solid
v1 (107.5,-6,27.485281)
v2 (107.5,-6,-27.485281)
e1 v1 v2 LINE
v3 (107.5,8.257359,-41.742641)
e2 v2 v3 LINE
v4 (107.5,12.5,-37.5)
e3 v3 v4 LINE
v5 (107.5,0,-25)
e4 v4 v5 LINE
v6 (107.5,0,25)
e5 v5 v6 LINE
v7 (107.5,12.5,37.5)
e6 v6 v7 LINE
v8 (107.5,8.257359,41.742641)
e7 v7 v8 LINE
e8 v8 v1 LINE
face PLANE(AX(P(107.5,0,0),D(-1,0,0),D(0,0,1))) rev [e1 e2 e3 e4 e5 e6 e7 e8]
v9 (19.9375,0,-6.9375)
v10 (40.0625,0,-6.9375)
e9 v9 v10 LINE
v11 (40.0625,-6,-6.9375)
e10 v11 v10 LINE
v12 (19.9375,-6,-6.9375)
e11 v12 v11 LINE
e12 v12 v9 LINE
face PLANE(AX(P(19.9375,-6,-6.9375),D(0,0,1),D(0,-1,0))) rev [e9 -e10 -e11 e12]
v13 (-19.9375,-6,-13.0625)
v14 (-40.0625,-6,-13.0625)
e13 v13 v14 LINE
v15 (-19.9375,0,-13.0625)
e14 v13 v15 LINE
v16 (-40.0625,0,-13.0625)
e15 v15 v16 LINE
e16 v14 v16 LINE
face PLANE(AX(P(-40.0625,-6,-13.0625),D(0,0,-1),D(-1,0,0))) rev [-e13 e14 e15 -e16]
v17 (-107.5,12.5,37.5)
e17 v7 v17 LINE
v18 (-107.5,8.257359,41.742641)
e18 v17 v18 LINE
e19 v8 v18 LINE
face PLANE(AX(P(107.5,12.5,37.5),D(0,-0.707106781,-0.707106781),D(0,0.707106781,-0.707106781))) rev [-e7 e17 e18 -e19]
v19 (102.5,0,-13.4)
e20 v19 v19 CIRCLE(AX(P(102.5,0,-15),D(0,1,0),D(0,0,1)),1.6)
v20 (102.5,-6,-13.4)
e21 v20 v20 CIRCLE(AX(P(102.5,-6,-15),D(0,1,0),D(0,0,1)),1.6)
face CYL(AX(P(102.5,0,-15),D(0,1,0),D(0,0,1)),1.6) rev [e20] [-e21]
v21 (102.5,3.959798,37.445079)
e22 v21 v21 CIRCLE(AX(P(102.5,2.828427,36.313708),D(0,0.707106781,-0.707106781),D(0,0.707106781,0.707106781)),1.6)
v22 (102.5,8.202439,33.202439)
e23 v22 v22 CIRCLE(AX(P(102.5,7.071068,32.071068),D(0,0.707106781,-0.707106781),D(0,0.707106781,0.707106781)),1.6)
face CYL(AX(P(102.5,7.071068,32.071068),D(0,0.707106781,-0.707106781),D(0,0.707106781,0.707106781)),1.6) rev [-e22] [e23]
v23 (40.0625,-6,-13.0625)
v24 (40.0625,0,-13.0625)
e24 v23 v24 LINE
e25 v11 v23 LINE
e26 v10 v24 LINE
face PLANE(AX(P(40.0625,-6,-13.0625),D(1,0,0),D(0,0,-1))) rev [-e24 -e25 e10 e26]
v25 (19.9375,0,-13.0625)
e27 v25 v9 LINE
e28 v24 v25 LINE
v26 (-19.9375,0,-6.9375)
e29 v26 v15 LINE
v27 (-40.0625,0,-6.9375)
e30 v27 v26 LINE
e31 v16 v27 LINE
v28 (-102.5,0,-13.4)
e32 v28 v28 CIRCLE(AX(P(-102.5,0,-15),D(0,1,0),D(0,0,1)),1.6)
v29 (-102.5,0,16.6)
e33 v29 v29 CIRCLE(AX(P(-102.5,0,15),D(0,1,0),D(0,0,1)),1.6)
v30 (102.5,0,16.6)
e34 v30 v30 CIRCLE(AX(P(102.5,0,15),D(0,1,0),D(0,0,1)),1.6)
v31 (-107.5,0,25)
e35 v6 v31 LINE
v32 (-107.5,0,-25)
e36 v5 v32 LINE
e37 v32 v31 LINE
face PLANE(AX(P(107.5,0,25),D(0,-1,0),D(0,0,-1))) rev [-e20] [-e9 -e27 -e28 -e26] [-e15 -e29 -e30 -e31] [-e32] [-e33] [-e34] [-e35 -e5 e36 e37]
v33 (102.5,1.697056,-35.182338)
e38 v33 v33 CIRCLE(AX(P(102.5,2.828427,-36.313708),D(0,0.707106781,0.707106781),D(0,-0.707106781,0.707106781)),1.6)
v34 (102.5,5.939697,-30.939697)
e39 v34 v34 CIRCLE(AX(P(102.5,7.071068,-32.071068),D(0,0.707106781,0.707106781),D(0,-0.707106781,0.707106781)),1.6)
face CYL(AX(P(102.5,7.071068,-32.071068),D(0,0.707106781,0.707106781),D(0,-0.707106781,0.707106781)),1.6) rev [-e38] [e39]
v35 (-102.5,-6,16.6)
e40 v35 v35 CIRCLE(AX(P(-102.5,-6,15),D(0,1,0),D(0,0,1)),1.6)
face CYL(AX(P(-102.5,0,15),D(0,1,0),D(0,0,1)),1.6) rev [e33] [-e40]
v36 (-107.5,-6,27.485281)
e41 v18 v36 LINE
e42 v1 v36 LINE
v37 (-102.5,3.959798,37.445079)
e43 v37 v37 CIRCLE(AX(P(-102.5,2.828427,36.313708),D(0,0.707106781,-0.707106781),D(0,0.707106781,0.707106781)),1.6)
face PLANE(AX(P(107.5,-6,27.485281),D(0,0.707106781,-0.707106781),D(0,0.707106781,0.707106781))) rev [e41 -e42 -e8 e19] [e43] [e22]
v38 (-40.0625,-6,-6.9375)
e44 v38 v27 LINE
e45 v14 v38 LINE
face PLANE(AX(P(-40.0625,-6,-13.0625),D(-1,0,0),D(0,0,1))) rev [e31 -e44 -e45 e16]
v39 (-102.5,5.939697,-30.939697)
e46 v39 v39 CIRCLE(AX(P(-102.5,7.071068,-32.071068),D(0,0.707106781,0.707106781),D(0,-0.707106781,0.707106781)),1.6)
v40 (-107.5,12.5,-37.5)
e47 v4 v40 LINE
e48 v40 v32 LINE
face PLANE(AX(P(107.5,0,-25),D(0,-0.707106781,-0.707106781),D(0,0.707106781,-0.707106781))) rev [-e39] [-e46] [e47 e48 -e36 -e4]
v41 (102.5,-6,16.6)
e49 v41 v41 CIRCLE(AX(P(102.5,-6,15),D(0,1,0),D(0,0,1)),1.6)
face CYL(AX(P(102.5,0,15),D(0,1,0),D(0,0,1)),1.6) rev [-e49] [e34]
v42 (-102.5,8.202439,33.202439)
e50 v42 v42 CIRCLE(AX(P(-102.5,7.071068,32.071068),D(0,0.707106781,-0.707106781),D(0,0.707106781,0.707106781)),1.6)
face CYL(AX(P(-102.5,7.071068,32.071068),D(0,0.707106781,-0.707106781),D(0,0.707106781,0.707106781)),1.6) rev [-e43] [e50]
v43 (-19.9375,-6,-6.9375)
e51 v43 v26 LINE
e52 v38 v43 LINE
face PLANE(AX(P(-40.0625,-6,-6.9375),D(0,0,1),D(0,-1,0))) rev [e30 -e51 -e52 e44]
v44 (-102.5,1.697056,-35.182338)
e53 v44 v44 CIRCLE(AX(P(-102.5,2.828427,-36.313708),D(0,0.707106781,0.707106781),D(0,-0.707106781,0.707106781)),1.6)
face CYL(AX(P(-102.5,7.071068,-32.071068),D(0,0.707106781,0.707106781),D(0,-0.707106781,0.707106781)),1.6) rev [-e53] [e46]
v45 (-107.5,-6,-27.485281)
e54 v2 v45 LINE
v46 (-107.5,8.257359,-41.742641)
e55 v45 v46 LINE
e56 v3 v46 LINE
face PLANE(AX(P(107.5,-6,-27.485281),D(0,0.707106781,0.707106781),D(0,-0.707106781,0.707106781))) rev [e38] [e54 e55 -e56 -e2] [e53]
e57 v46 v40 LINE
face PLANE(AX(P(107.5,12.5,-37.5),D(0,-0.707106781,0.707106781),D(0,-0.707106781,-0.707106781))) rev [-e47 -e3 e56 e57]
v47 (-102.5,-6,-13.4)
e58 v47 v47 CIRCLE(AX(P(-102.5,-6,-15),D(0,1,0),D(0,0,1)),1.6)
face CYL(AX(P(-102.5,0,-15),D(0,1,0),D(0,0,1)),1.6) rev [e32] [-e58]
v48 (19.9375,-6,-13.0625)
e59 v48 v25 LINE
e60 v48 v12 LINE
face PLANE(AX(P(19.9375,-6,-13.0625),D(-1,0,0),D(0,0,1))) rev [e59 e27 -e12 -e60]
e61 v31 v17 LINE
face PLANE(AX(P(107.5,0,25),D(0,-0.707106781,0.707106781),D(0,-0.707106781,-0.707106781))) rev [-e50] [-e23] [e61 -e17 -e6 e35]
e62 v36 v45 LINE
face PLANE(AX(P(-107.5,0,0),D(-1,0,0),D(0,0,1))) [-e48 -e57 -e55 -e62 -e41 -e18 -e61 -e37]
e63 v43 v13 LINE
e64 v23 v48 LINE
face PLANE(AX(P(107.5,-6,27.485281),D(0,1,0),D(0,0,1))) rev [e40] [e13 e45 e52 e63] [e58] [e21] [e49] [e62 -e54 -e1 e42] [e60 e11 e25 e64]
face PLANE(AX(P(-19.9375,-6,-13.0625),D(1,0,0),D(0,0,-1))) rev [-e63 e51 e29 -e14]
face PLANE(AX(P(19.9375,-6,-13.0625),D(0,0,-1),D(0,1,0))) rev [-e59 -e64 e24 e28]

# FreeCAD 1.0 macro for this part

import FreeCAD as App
import Part
import Sketcher

V = App.Vector
Q = App.Units.Quantity


def add_polygon(sketch, points):
    """Adds a closed chain of lines whose ends are joined by coincident constraints."""
    first, n = sketch.GeometryCount, len(points)
    for a, b in zip(points, points[1:] + points[:1]):
        sketch.addGeometry(Part.LineSegment(App.Vector(*a, 0), App.Vector(*b, 0)), False)
    for i in range(n):
        sketch.addConstraint(Sketcher.Constraint("Coincident", first + i, 2, first + (i + 1) % n, 1))

doc = App.newDocument("Part")
body = doc.addObject("PartDesign::Body", "Body")

# Sketch on YZ plane
sketch1 = doc.addObject("Sketcher::SketchObject", "Sketch")
body.addObject(sketch1)
sketch1.AttachmentSupport = (doc.YZ_Plane, [""])
sketch1.MapMode = "FlatFace"
add_polygon(sketch1, [(0, -25), (0, 25), (12, 38), (8, 42), (-6, 27), (-6, -27), (8, -42), (12, -38)])  # lines 0-7
sketch1.addConstraint(Sketcher.Constraint("Vertical", 0))
sketch1.addConstraint(Sketcher.Constraint("Vertical", 4))
sketch1.addConstraint(Sketcher.Constraint("Symmetric", 0, 2, 7, 2, -1, 1))
sketch1.addConstraint(Sketcher.Constraint("Symmetric", 2, 2, 5, 2, -1))
sketch1.addConstraint(Sketcher.Constraint("Symmetric", 1, 2, 6, 2, -1))
sketch1.addConstraint(Sketcher.Constraint("Perpendicular", 1, 2))
sketch1.addConstraint(Sketcher.Constraint("Perpendicular", 2, 3))
sketch1.addConstraint(Sketcher.Constraint("Perpendicular", 3, 5))
sketch1.addConstraint(Sketcher.Constraint("Perpendicular", 5, 6))
sketch1.addConstraint(Sketcher.Constraint("DistanceY", 0, 1, 0, 2, Q("50 mm")))
sketch1.addConstraint(Sketcher.Constraint("Distance", 2, Q("6 mm")))
sketch1.addConstraint(Sketcher.Constraint("DistanceX", 3, 2, -1, 1, Q("6 mm")))
sketch1.addConstraint(Sketcher.Constraint("DistanceY", 6, 2, 1, 2, Q("75 mm")))
pad1 = doc.addObject("PartDesign::Pad", "Pad")
body.addObject(pad1)
pad1.Profile = sketch1
pad1.Length = 215
pad1.Midplane = True

# Sketch on an angled plane
sketch2 = doc.addObject("Sketcher::SketchObject", "Sketch001")
body.addObject(sketch2)
sketch2.Placement = App.Placement(V(0, -12.5, -12.5), App.Rotation(V(0, 0.707106781, -0.707106781), V(-0.999999999, 0, 0), V(0, 0.707106781, 0.707106781), "ZXY"))
sketch2.addGeometry(Part.Circle(V(27.7, 102.5, 0), V(0, 0, 1), 1.6), False)
sketch2.addConstraint(Sketcher.Constraint("Diameter", 0, Q("3.2 mm")))
sketch2.addConstraint(Sketcher.Constraint("DistanceY", -1, 1, 0, 3, Q("102.5 mm")))
sketch2.addConstraint(Sketcher.Constraint("DistanceX", -1, 1, 0, 3, Q("27.67767 mm")))
doc.recompute()
hole = doc.addObject("PartDesign::Hole", "Hole")
body.addObject(hole)
hole.Profile = sketch2
hole.ThreadType = "None"
hole.Diameter = 3.2
hole.DepthType = "ThroughAll"

# Sketch on XZ plane
sketch3 = doc.addObject("Sketcher::SketchObject", "Sketch002")
body.addObject(sketch3)
sketch3.AttachmentSupport = (doc.XZ_Plane, [""])
sketch3.MapMode = "FlatFace"
sketch3.addGeometry(Part.Circle(V(-102.5, -15, 0), V(0, 0, 1), 1.6), False)
sketch3.addGeometry(Part.Circle(V(-102.5, 15, 0), V(0, 0, 1), 1.6), False)
sketch3.addGeometry(Part.Circle(V(102.5, 15, 0), V(0, 0, 1), 1.6), False)
sketch3.addGeometry(Part.Circle(V(102.5, -15, 0), V(0, 0, 1), 1.6), False)
sketch3.addConstraint(Sketcher.Constraint("Equal", 0, 1))
sketch3.addConstraint(Sketcher.Constraint("Equal", 1, 2))
sketch3.addConstraint(Sketcher.Constraint("Equal", 2, 3))
sketch3.addConstraint(Sketcher.Constraint("Symmetric", 0, 3, 2, 3, -1, 1))
sketch3.addConstraint(Sketcher.Constraint("Symmetric", 1, 3, 3, 3, -1, 1))
sketch3.addConstraint(Sketcher.Constraint("Symmetric", 1, 3, 2, 3, -2))
sketch3.addConstraint(Sketcher.Constraint("Diameter", 0, Q("3.2 mm")))
sketch3.addConstraint(Sketcher.Constraint("DistanceY", 0, 3, -1, 1, Q("15 mm")))
sketch3.addConstraint(Sketcher.Constraint("DistanceX", 1, 3, 2, 3, Q("205 mm")))
doc.recompute()
hole2 = doc.addObject("PartDesign::Hole", "Hole001")
body.addObject(hole2)
hole2.Profile = sketch3
hole2.ThreadType = "None"
hole2.Diameter = 3.2
hole2.DepthType = "ThroughAll"
hole2.Reversed = True

# Sketch on an angled plane
sketch4 = doc.addObject("Sketcher::SketchObject", "Sketch003")
body.addObject(sketch4)
sketch4.Placement = App.Placement(V(0, -12.5, 12.5), App.Rotation(V(0, -0.707106781, -0.707106781), V(-0.999999999, 0, 0), V(0, 0.707106781, -0.707106781), "ZXY"))
sketch4.addGeometry(Part.Circle(V(-27.7, 102.5, 0), V(0, 0, 1), 1.6), False)
sketch4.addGeometry(Part.Circle(V(-27.7, -102.5, 0), V(0, 0, 1), 1.6), False)
sketch4.addConstraint(Sketcher.Constraint("Equal", 0, 1))
sketch4.addConstraint(Sketcher.Constraint("Symmetric", 0, 3, 1, 3, -1))
sketch4.addConstraint(Sketcher.Constraint("Diameter", 0, Q("3.2 mm")))
sketch4.addConstraint(Sketcher.Constraint("DistanceY", 1, 3, 0, 3, Q("205 mm")))
sketch4.addConstraint(Sketcher.Constraint("DistanceX", 0, 3, -1, 1, Q("27.67767 mm")))
doc.recompute()
hole3 = doc.addObject("PartDesign::Hole", "Hole002")
body.addObject(hole3)
hole3.Profile = sketch4
hole3.ThreadType = "None"
hole3.Diameter = 3.2
hole3.DepthType = "ThroughAll"

# Sketch on an angled plane
sketch5 = doc.addObject("Sketcher::SketchObject", "Sketch004")
body.addObject(sketch5)
sketch5.Placement = App.Placement(V(0, -12.5, -12.5), App.Rotation(V(0, 0.707106781, -0.707106781), V(-0.999999999, 0, 0), V(0, 0.707106781, 0.707106781), "ZXY"))
sketch5.addGeometry(Part.Circle(V(27.7, -102.5, 0), V(0, 0, 1), 1.6), False)
sketch5.addConstraint(Sketcher.Constraint("Diameter", 0, Q("3.2 mm")))
sketch5.addConstraint(Sketcher.Constraint("DistanceY", 0, 3, -1, 1, Q("102.5 mm")))
sketch5.addConstraint(Sketcher.Constraint("DistanceX", -1, 1, 0, 3, Q("27.67767 mm")))
doc.recompute()
hole4 = doc.addObject("PartDesign::Hole", "Hole003")
body.addObject(hole4)
hole4.Profile = sketch5
hole4.ThreadType = "None"
hole4.Diameter = 3.2
hole4.DepthType = "ThroughAll"

# Sketch on XZ plane
sketch6 = doc.addObject("Sketcher::SketchObject", "Sketch005")
body.addObject(sketch6)
sketch6.AttachmentSupport = (doc.XZ_Plane, [""])
sketch6.MapMode = "FlatFace"
add_polygon(sketch6, [(20, -13), (20, -7), (40, -7), (40, -13)])  # lines 0-3
add_polygon(sketch6, [(-40, -13), (-40, -7), (-20, -7), (-20, -13)])  # lines 4-7
sketch6.addConstraint(Sketcher.Constraint("Vertical", 0))
sketch6.addConstraint(Sketcher.Constraint("Horizontal", 1))
sketch6.addConstraint(Sketcher.Constraint("Vertical", 2))
sketch6.addConstraint(Sketcher.Constraint("Horizontal", 3))
sketch6.addConstraint(Sketcher.Constraint("Vertical", 4))
sketch6.addConstraint(Sketcher.Constraint("Horizontal", 5))
sketch6.addConstraint(Sketcher.Constraint("Vertical", 6))
sketch6.addConstraint(Sketcher.Constraint("Horizontal", 7))
sketch6.addConstraint(Sketcher.Constraint("Symmetric", 1, 2, 4, 2, -2))
sketch6.addConstraint(Sketcher.Constraint("Symmetric", 3, 2, 6, 2, -2))
sketch6.addConstraint(Sketcher.Constraint("DistanceX", 4, 2, 0, 2, Q("60 mm")))
sketch6.addConstraint(Sketcher.Constraint("DistanceX", 1, 1, 1, 2, Q("20.125 mm")))
sketch6.addConstraint(Sketcher.Constraint("DistanceY", 0, 1, 0, 2, Q("6.125 mm")))
sketch6.addConstraint(Sketcher.Constraint("DistanceY", 0, 2, -1, 1, Q("6.9375 mm")))
pocket1 = doc.addObject("PartDesign::Pocket", "Pocket")
body.addObject(pocket1)
pocket1.Profile = sketch6
pocket1.Type = "ThroughAll"
pocket1.Reversed = True

doc.recompute()
